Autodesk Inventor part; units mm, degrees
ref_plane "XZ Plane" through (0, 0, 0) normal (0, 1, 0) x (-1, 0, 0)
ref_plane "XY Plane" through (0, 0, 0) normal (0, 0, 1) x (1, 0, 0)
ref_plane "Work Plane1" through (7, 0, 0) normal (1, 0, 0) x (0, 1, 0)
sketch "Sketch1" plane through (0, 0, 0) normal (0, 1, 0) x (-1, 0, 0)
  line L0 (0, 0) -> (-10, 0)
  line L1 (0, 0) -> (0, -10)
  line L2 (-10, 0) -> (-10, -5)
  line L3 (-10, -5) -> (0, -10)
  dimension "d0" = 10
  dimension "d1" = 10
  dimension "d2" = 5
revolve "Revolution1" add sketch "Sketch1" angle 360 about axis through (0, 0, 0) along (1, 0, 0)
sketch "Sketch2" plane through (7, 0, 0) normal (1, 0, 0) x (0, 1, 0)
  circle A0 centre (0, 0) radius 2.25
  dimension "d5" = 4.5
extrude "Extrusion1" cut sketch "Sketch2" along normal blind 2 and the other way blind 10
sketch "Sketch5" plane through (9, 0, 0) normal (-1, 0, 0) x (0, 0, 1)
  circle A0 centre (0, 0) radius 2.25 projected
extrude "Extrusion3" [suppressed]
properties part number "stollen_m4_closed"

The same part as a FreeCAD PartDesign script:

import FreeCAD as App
import Part
import Sketcher

V = App.Vector
Q = App.Units.Quantity


def add_polygon(sketch, points):
    """Adds a closed chain of lines whose ends are joined by coincident constraints."""
    first, n = sketch.GeometryCount, len(points)
    for a, b in zip(points, points[1:] + points[:1]):
        sketch.addGeometry(Part.LineSegment(App.Vector(*a, 0), App.Vector(*b, 0)), False)
    for i in range(n):
        sketch.addConstraint(Sketcher.Constraint("Coincident", first + i, 2, first + (i + 1) % n, 1))

doc = App.newDocument("Part")
body = doc.addObject("PartDesign::Body", "Body")

sketch1 = doc.addObject("Sketcher::SketchObject", "Sketch")
body.addObject(sketch1)
sketch1.AttachmentSupport = (doc.XZ_Plane, [""])
sketch1.MapMode = "FlatFace"
add_polygon(sketch1, [(0, -10), (0, 0), (10, 0), (10, -5)])
sketch1.addConstraint([
    Sketcher.Constraint("Vertical", 0),
    Sketcher.Constraint("Horizontal", 1),
    Sketcher.Constraint("Vertical", 2),
    Sketcher.Constraint("Coincident", 0, 2, -1, 1),
    Sketcher.Constraint("Equal", 1, 0),
    Sketcher.Constraint("DistanceX", 1, 1, 1, 2, Q("10 mm")),
    Sketcher.Constraint("DistanceY", 2, 2, 2, 1, Q("5 mm")),
])
revolution = doc.addObject("PartDesign::Revolution", "Revolution")
body.addObject(revolution)
revolution.Profile = sketch1
revolution.ReferenceAxis = (sketch1, ["H_Axis"])
revolution.Angle = 360

sketch2 = doc.addObject("Sketcher::SketchObject", "Sketch001")
body.addObject(sketch2)
sketch2.AttachmentSupport = (doc.YZ_Plane, [""])
sketch2.MapMode = "FlatFace"
sketch2.AttachmentOffset = App.Placement(V(0, 0, 7), App.Rotation())
sketch2.addGeometry(Part.Circle(V(0, 0, 0), V(0, 0, 1), 2.2), False)
sketch2.addConstraint([
    Sketcher.Constraint("Coincident", 0, 3, -1, 1),
    Sketcher.Constraint("Diameter", 0, Q("4.5 mm")),
])
pocket1 = doc.addObject("PartDesign::Pocket", "Pocket")
body.addObject(pocket1)
pocket1.Profile = sketch2
pocket1.Type = "TwoLengths"
pocket1.Length = 2
pocket1.Length2 = 10
pocket1.Reversed = True

doc.recompute()
